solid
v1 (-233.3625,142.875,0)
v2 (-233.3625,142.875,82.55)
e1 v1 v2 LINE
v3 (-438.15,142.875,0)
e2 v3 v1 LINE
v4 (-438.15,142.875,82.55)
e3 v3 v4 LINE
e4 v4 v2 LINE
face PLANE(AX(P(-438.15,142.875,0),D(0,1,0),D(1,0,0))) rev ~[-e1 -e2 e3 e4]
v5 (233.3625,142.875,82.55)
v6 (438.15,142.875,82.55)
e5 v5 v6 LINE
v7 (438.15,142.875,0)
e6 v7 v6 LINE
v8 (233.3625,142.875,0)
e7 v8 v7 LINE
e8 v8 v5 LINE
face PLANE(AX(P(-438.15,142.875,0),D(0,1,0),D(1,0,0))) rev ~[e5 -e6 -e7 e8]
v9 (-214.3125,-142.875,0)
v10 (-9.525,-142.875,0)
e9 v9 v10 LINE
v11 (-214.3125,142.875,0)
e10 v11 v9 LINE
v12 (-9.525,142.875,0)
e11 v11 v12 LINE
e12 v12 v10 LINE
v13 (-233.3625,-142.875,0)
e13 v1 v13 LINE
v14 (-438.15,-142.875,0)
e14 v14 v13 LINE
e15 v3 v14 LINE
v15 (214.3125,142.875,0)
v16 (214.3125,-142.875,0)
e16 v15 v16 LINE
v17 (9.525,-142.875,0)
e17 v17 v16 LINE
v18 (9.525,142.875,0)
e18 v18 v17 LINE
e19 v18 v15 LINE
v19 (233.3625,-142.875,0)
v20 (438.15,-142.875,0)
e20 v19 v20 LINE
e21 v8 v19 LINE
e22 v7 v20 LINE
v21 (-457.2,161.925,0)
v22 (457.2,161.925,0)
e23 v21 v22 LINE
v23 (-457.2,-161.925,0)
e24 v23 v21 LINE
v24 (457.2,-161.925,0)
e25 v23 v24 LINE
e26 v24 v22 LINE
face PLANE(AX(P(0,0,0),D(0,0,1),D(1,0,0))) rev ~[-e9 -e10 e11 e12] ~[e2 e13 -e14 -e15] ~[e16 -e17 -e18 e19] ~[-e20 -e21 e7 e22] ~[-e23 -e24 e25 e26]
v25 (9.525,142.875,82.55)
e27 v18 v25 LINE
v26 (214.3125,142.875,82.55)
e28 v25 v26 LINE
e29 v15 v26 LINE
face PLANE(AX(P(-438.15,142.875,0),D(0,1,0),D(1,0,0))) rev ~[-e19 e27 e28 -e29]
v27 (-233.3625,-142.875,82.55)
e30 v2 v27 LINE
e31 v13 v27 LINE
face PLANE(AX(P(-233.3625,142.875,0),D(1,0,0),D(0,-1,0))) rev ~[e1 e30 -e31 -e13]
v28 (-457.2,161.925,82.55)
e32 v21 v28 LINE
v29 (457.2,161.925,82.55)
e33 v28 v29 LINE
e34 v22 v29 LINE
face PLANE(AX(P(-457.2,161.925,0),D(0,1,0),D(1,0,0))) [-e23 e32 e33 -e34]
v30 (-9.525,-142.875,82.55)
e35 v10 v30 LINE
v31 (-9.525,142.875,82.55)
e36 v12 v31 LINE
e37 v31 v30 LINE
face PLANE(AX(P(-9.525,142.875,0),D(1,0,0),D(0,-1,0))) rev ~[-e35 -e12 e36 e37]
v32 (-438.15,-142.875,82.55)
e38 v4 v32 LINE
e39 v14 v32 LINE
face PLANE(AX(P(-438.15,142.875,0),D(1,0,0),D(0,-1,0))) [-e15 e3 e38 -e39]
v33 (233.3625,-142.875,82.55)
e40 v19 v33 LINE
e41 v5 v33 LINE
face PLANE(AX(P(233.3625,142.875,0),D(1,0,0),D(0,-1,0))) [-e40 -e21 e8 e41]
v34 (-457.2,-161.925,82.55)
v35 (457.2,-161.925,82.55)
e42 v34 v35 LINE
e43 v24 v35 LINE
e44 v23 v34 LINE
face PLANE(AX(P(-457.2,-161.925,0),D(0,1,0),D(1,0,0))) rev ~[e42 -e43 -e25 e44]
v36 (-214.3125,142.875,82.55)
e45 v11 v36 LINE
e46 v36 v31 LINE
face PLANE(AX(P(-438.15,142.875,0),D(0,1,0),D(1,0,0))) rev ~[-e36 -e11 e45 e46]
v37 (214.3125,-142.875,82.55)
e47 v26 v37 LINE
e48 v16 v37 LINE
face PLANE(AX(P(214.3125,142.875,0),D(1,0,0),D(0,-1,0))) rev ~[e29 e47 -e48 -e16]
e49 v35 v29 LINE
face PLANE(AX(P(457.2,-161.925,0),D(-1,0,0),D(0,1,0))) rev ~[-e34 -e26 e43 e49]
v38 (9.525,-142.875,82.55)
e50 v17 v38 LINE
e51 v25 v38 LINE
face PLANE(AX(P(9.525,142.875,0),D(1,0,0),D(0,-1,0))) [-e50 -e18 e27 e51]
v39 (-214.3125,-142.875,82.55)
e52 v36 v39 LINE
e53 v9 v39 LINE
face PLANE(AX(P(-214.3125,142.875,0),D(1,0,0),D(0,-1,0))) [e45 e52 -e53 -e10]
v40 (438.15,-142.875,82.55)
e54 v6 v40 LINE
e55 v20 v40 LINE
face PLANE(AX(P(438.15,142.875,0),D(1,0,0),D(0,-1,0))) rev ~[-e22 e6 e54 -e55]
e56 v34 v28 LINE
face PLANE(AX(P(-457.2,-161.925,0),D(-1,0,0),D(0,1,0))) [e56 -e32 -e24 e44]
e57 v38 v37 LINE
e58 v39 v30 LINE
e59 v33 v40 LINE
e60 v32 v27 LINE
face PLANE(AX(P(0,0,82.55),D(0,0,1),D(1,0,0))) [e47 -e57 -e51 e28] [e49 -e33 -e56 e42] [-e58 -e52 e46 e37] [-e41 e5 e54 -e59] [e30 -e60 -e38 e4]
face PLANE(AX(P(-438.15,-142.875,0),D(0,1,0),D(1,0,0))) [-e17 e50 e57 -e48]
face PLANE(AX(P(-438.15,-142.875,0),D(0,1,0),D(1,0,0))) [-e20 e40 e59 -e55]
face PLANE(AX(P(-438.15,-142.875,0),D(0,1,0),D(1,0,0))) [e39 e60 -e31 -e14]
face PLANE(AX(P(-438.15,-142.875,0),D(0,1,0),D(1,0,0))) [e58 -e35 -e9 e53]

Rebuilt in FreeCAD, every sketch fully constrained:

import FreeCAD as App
import Part
import Sketcher

V = App.Vector
Q = App.Units.Quantity


def add_polygon(sketch, points):
    """Adds a closed chain of lines whose ends are joined by coincident constraints."""
    first, n = sketch.GeometryCount, len(points)
    for a, b in zip(points, points[1:] + points[:1]):
        sketch.addGeometry(Part.LineSegment(App.Vector(*a, 0), App.Vector(*b, 0)), False)
    for i in range(n):
        sketch.addConstraint(Sketcher.Constraint("Coincident", first + i, 2, first + (i + 1) % n, 1))

doc = App.newDocument("Part")
body = doc.addObject("PartDesign::Body", "Body")

# Sketch on XY plane
sketch1 = doc.addObject("Sketcher::SketchObject", "Sketch")
body.addObject(sketch1)
sketch1.AttachmentSupport = (doc.XY_Plane, [""])
sketch1.MapMode = "FlatFace"
add_polygon(sketch1, [(-457, 162), (-457, -162), (457, -162), (457, 162)])  # lines 0-3
sketch1.addConstraint(Sketcher.Constraint("Vertical", 0))
sketch1.addConstraint(Sketcher.Constraint("Horizontal", 1))
sketch1.addConstraint(Sketcher.Constraint("Vertical", 2))
sketch1.addConstraint(Sketcher.Constraint("Horizontal", 3))
sketch1.addConstraint(Sketcher.Constraint("Symmetric", 0, 2, 2, 2, -1, 1))
sketch1.addConstraint(Sketcher.Constraint("DistanceX", 1, 1, 1, 2, Q("36 in")))
sketch1.addConstraint(Sketcher.Constraint("DistanceY", 0, 2, 0, 1, Q("12.75 in")))
pad1 = doc.addObject("PartDesign::Pad", "Pad")
body.addObject(pad1)
pad1.Profile = sketch1
pad1.Length = Q("3.25 in")

# Sketch on XY plane
sketch2 = doc.addObject("Sketcher::SketchObject", "Sketch001")
body.addObject(sketch2)
sketch2.AttachmentSupport = (doc.XY_Plane, [""])
sketch2.MapMode = "FlatFace"
add_polygon(sketch2, [(-438, -143), (-438, 143), (438, 143), (438, -143)])  # lines 0-3
sketch2.addConstraint(Sketcher.Constraint("Vertical", 0))
sketch2.addConstraint(Sketcher.Constraint("Horizontal", 1))
sketch2.addConstraint(Sketcher.Constraint("Vertical", 2))
sketch2.addConstraint(Sketcher.Constraint("Horizontal", 3))
sketch2.addConstraint(Sketcher.Constraint("Symmetric", 0, 2, 2, 2, -1, 1))
sketch2.addConstraint(Sketcher.Constraint("DistanceX", 1, 1, 1, 2, Q("34.5 in")))
sketch2.addConstraint(Sketcher.Constraint("DistanceY", 0, 1, 0, 2, Q("11.25 in")))
pocket1 = doc.addObject("PartDesign::Pocket", "Pocket")
body.addObject(pocket1)
pocket1.Profile = sketch2
pocket1.Length = Q("3.25 in")
pocket1.Reversed = True

# Sketch on XY plane
sketch3 = doc.addObject("Sketcher::SketchObject", "Sketch002")
body.addObject(sketch3)
sketch3.AttachmentSupport = (doc.XY_Plane, [""])
sketch3.MapMode = "FlatFace"
add_polygon(sketch3, [(-10, -143), (-10, 143), (10, 143), (10, -143)])  # lines 0-3
sketch3.addConstraint(Sketcher.Constraint("Vertical", 0))
sketch3.addConstraint(Sketcher.Constraint("Horizontal", 1))
sketch3.addConstraint(Sketcher.Constraint("Vertical", 2))
sketch3.addConstraint(Sketcher.Constraint("Horizontal", 3))
sketch3.addConstraint(Sketcher.Constraint("Symmetric", 0, 2, 2, 2, -1, 1))
sketch3.addConstraint(Sketcher.Constraint("DistanceX", 1, 1, 1, 2, Q("0.75 in")))
sketch3.addConstraint(Sketcher.Constraint("DistanceY", 0, 1, 0, 2, Q("11.25 in")))
pad2 = doc.addObject("PartDesign::Pad", "Pad001")
body.addObject(pad2)
pad2.Profile = sketch3
pad2.Length = Q("3.25 in")

# Sketch on XY plane
sketch4 = doc.addObject("Sketcher::SketchObject", "Sketch003")
body.addObject(sketch4)
sketch4.AttachmentSupport = (doc.XY_Plane, [""])
sketch4.MapMode = "FlatFace"
add_polygon(sketch4, [(-233, -143), (-233, 143), (-214, 143), (-214, -143)])  # lines 0-3
sketch4.addConstraint(Sketcher.Constraint("Vertical", 0))
sketch4.addConstraint(Sketcher.Constraint("Horizontal", 1))
sketch4.addConstraint(Sketcher.Constraint("Vertical", 2))
sketch4.addConstraint(Sketcher.Constraint("Horizontal", 3))
sketch4.addConstraint(Sketcher.Constraint("DistanceX", 1, 1, 1, 2, Q("0.75 in")))
sketch4.addConstraint(Sketcher.Constraint("DistanceY", 0, 1, 0, 2, Q("11.25 in")))
sketch4.addConstraint(Sketcher.Constraint("DistanceX", 0, 2, -1, 1, Q("9.1875 in")))
sketch4.addConstraint(Sketcher.Constraint("DistanceY", -1, 1, 0, 2, Q("5.625 in")))
pad3 = doc.addObject("PartDesign::Pad", "Pad002")
body.addObject(pad3)
pad3.Profile = sketch4
pad3.Length = Q("3.25 in")

# Sketch on XY plane
sketch5 = doc.addObject("Sketcher::SketchObject", "Sketch004")
body.addObject(sketch5)
sketch5.AttachmentSupport = (doc.XY_Plane, [""])
sketch5.MapMode = "FlatFace"
add_polygon(sketch5, [(214, -143), (214, 143), (233, 143), (233, -143)])  # lines 0-3
sketch5.addConstraint(Sketcher.Constraint("Vertical", 0))
sketch5.addConstraint(Sketcher.Constraint("Horizontal", 1))
sketch5.addConstraint(Sketcher.Constraint("Vertical", 2))
sketch5.addConstraint(Sketcher.Constraint("Horizontal", 3))
sketch5.addConstraint(Sketcher.Constraint("DistanceX", 1, 1, 1, 2, Q("0.75 in")))
sketch5.addConstraint(Sketcher.Constraint("DistanceY", 0, 1, 0, 2, Q("11.25 in")))
sketch5.addConstraint(Sketcher.Constraint("DistanceX", -1, 1, 0, 2, Q("8.4375 in")))
sketch5.addConstraint(Sketcher.Constraint("DistanceY", -1, 1, 0, 2, Q("5.625 in")))
pad4 = doc.addObject("PartDesign::Pad", "Pad003")
body.addObject(pad4)
pad4.Profile = sketch5
pad4.Length = Q("3.25 in")

doc.recompute()
